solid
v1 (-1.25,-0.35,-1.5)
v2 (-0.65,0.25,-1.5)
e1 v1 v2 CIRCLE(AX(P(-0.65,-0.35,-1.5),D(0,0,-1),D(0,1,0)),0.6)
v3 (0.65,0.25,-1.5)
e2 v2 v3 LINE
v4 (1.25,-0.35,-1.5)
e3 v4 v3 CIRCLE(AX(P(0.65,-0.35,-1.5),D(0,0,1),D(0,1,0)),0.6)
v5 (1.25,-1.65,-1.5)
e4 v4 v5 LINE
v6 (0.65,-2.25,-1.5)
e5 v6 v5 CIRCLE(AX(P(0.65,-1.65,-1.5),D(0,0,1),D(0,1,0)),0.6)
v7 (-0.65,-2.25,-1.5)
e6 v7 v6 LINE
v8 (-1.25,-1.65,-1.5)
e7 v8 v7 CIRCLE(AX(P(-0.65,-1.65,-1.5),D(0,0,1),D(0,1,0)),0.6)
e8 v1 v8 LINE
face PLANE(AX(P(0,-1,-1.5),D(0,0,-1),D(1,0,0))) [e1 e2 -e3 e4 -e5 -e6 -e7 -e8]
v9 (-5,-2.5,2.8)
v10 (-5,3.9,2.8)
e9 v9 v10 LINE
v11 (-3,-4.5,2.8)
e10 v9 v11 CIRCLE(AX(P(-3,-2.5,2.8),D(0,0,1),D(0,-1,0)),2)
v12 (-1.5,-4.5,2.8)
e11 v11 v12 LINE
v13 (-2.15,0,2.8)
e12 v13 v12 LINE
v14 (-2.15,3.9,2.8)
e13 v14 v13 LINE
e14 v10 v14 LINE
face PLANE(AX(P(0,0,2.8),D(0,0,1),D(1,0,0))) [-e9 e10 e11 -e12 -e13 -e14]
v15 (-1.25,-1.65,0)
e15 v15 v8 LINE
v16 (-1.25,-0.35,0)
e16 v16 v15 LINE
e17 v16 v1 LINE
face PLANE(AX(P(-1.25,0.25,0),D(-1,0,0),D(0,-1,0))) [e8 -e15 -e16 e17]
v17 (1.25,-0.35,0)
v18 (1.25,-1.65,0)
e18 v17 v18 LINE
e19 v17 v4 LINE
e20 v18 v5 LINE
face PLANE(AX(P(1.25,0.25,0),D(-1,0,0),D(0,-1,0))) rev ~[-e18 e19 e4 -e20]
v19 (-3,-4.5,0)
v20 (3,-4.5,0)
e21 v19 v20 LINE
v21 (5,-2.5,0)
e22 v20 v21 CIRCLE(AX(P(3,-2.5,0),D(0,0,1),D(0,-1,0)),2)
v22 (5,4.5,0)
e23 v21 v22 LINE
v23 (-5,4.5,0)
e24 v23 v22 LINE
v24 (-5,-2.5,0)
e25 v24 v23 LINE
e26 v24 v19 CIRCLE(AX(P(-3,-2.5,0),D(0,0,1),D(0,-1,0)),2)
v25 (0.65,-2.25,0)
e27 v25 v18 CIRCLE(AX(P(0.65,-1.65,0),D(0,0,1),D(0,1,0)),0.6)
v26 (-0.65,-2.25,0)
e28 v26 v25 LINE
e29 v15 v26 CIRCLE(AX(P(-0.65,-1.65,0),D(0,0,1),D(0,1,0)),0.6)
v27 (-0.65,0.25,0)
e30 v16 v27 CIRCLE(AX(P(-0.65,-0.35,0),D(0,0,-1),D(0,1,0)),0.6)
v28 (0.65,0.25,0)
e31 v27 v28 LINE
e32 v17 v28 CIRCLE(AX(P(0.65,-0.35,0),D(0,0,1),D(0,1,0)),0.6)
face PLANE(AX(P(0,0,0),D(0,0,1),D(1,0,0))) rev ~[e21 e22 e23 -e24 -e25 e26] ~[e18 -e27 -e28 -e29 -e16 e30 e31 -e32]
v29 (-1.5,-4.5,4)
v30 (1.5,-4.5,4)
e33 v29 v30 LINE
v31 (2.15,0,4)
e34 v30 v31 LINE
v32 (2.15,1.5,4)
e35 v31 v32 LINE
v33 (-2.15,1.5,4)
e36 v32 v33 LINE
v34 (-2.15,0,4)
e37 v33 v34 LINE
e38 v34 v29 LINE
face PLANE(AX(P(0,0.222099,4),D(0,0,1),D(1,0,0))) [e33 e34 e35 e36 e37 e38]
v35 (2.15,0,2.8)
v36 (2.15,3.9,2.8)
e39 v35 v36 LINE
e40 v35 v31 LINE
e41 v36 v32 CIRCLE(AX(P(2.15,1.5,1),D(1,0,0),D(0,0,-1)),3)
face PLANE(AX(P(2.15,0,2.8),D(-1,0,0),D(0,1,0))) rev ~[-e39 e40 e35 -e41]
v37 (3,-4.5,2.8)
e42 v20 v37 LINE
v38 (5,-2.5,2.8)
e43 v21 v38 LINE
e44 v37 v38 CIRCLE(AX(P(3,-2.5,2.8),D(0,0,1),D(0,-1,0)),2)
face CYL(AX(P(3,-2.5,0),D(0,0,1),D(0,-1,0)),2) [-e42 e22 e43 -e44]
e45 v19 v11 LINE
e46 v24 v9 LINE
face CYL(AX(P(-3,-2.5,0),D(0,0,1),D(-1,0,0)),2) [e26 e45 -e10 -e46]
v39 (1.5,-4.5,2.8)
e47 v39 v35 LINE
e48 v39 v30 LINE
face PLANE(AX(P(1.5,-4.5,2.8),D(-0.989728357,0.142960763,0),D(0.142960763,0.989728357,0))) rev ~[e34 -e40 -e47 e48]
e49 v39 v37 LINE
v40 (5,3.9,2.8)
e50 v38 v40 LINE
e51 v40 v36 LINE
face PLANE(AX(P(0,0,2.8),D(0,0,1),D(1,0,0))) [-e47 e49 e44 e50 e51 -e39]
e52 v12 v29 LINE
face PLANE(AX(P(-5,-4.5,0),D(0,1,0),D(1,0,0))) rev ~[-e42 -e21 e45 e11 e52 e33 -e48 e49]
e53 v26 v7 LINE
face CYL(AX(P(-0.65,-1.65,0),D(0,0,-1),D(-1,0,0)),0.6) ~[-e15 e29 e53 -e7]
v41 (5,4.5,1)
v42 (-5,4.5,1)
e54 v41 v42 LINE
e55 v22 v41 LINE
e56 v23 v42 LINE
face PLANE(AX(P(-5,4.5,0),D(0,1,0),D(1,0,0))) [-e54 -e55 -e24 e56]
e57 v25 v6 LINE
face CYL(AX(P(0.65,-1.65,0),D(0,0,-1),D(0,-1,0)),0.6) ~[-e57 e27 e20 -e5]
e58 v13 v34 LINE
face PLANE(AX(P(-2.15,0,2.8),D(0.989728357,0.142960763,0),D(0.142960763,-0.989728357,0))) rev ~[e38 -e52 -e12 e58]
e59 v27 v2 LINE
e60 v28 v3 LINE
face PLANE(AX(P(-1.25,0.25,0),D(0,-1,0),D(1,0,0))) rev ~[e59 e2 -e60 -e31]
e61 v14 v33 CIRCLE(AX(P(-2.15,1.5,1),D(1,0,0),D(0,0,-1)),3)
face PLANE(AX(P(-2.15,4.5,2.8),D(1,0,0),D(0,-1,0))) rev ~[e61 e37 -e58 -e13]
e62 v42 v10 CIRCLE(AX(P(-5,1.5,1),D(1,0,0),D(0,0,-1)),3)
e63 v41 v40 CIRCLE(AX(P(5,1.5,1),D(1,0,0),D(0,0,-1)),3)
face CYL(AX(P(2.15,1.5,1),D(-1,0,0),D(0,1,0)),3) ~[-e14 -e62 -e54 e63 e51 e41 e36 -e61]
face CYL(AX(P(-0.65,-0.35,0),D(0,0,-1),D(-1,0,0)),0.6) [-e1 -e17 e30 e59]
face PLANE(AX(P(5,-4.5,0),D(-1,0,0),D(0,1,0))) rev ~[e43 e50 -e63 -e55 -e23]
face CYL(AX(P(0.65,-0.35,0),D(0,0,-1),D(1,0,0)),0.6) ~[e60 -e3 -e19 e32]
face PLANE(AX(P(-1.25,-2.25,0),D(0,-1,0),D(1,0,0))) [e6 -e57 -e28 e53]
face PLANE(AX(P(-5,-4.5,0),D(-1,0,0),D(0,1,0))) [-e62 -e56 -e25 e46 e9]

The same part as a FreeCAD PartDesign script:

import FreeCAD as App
import Part
import Sketcher

V = App.Vector
Q = App.Units.Quantity


def edges_at(feature, points):
    """Names of the edges that pass closest to the given points."""
    edges = feature.Shape.Edges
    near = lambda p: min(range(len(edges)), key=lambda i: edges[i].distToShape(Part.Vertex(*p))[0])
    return sorted({f"Edge{near(p) + 1}" for p in points})


def add_polygon(sketch, points):
    """Adds a closed chain of lines whose ends are joined by coincident constraints."""
    first, n = sketch.GeometryCount, len(points)
    for a, b in zip(points, points[1:] + points[:1]):
        sketch.addGeometry(Part.LineSegment(App.Vector(*a, 0), App.Vector(*b, 0)), False)
    for i in range(n):
        sketch.addConstraint(Sketcher.Constraint("Coincident", first + i, 2, first + (i + 1) % n, 1))

doc = App.newDocument("Part")
params = doc.addObject("Spreadsheet::Sheet", "Params")
for row, (alias, value) in enumerate([
    ("sketch1_width", "10 mm"),
    ("sketch1_height", "9 mm"),
    ("pad1_length", "2.8 mm"),
    ("sketch2_width", "3 mm"),
    ("sketch2_width2", "4.3 mm"),
    ("sketch2_height", "4.5 mm"),
    ("pad2_length", "1.2 mm"),
    ("sketch3_width", "2.5 mm"),
    ("pad3_length", "1.5 mm"),
    ("fillet_radius", "2 mm"),
    ("fillet2_radius", "3 mm"),
    ("fillet3_radius", "0.6 mm"),
], start=1):
    params.set(f"A{row}", alias)
    params.set(f"B{row}", "=" + value)
    params.setAlias(f"B{row}", alias)

body = doc.addObject("PartDesign::Body", "Body")

# Sketch on XY plane
sketch1 = body.newObject("Sketcher::SketchObject", "Sketch")
sketch1.AttachmentSupport = (doc.getObject("XY_Plane"), [""])
sketch1.MapMode = "FlatFace"
add_polygon(sketch1, [(-5, 4), (-5, -4), (5, -4), (5, 4)])  # lines 0-3
sketch1.addConstraint(Sketcher.Constraint("Vertical", 0))
sketch1.addConstraint(Sketcher.Constraint("Horizontal", 1))
sketch1.addConstraint(Sketcher.Constraint("Vertical", 2))
sketch1.addConstraint(Sketcher.Constraint("Horizontal", 3))
sketch1.addConstraint(Sketcher.Constraint("Symmetric", 0, 2, 2, 2, -1, 1))
sketch1.addConstraint(Sketcher.Constraint("DistanceX", 1, 1, 1, 2, Q("10 mm")))
sketch1.addConstraint(Sketcher.Constraint("DistanceY", 0, 2, 0, 1, Q("9 mm")))
sketch1.setExpression("Constraints[9]", "Params.sketch1_width")
sketch1.setExpression("Constraints[10]", "Params.sketch1_height")
pad1 = body.newObject("PartDesign::Pad", "Pad")
pad1.Profile = sketch1
pad1.setExpression("Length", "Params.pad1_length")

# Sketch on XY plane
sketch2 = body.newObject("Sketcher::SketchObject", "Sketch001")
sketch2.AttachmentSupport = (doc.getObject("XY_Plane"), [""])
sketch2.MapMode = "FlatFace"
sketch2.AttachmentOffset = App.Placement(V(0, 0, 2.8), App.Rotation())
add_polygon(sketch2, [(2.1, 4.5), (-2.1, 4.5), (-2.1, 0), (-1.5, -4.5), (1.5, -4.5), (2.1, 0)])  # lines 0-5
sketch2.addConstraint(Sketcher.Constraint("Horizontal", 0))
sketch2.addConstraint(Sketcher.Constraint("Vertical", 1))
sketch2.addConstraint(Sketcher.Constraint("Horizontal", 3))
sketch2.addConstraint(Sketcher.Constraint("Vertical", 5))
sketch2.addConstraint(Sketcher.Constraint("Symmetric", 1, 2, 4, 2, -1, 1))
sketch2.addConstraint(Sketcher.Constraint("PointOnObject", 1, 2, -1))
sketch2.addConstraint(Sketcher.Constraint("Equal", 2, 4))
sketch2.addConstraint(Sketcher.Constraint("DistanceX", 3, 1, 3, 2, Q("3 mm")))
sketch2.addConstraint(Sketcher.Constraint("DistanceX", 0, 2, 0, 1, Q("4.3 mm")))
sketch2.addConstraint(Sketcher.Constraint("DistanceY", 1, 2, 1, 1, Q("4.5 mm")))
sketch2.addConstraint(Sketcher.Constraint("DistanceY", 2, 2, 0, 2, Q("9 mm")))
sketch2.setExpression("Constraints[13]", "Params.sketch2_width")
sketch2.setExpression("Constraints[14]", "Params.sketch2_width2")
sketch2.setExpression("Constraints[15]", "Params.sketch2_height")
pad2 = body.newObject("PartDesign::Pad", "Pad001")
pad2.Profile = sketch2
pad2.setExpression("Length", "Params.pad2_length")

# Sketch on XY plane
sketch3 = body.newObject("Sketcher::SketchObject", "Sketch002")
sketch3.AttachmentSupport = (doc.getObject("XY_Plane"), [""])
sketch3.MapMode = "FlatFace"
add_polygon(sketch3, [(-1.2, -2.2), (-1.2, 0.2), (1.2, 0.2), (1.2, -2.2)])  # lines 0-3
sketch3.addConstraint(Sketcher.Constraint("Vertical", 0))
sketch3.addConstraint(Sketcher.Constraint("Horizontal", 1))
sketch3.addConstraint(Sketcher.Constraint("Vertical", 2))
sketch3.addConstraint(Sketcher.Constraint("Horizontal", 3))
sketch3.addConstraint(Sketcher.Constraint("Equal", 3, 0))
sketch3.addConstraint(Sketcher.Constraint("DistanceX", 1, 1, 1, 2, Q("2.5 mm")))
sketch3.addConstraint(Sketcher.Constraint("DistanceX", 0, 2, -1, 1, Q("1.25 mm")))
sketch3.addConstraint(Sketcher.Constraint("DistanceY", -1, 1, 0, 2, Q("0.25 mm")))
sketch3.setExpression("Constraints[9]", "Params.sketch3_width")
pad3 = body.newObject("PartDesign::Pad", "Pad002")
pad3.Profile = sketch3
pad3.setExpression("Length", "Params.pad3_length")
pad3.Reversed = True
doc.recompute()

fillet = body.newObject("PartDesign::Fillet", "Fillet")
fillet.Base = (pad3, edges_at(pad3, [(5, -4.5, 1.4), (-5, -4.5, 1.4)]))
fillet.setExpression("Radius", "Params.fillet_radius")
doc.recompute()

fillet2 = body.newObject("PartDesign::Fillet", "Fillet001")
fillet2.Base = (fillet, edges_at(fillet, [(0, 4.5, 4)]))
fillet2.setExpression("Radius", "Params.fillet2_radius")
doc.recompute()

fillet3 = body.newObject("PartDesign::Fillet", "Fillet002")
fillet3.Base = (fillet2, edges_at(fillet2, [
    (1.25, -2.25, -0.75),
    (-1.25, -2.25, -0.75),
    (1.25, 0.25, -0.75),
    (-1.25, 0.25, -0.75),
]))
fillet3.setExpression("Radius", "Params.fillet3_radius")

doc.recompute()
